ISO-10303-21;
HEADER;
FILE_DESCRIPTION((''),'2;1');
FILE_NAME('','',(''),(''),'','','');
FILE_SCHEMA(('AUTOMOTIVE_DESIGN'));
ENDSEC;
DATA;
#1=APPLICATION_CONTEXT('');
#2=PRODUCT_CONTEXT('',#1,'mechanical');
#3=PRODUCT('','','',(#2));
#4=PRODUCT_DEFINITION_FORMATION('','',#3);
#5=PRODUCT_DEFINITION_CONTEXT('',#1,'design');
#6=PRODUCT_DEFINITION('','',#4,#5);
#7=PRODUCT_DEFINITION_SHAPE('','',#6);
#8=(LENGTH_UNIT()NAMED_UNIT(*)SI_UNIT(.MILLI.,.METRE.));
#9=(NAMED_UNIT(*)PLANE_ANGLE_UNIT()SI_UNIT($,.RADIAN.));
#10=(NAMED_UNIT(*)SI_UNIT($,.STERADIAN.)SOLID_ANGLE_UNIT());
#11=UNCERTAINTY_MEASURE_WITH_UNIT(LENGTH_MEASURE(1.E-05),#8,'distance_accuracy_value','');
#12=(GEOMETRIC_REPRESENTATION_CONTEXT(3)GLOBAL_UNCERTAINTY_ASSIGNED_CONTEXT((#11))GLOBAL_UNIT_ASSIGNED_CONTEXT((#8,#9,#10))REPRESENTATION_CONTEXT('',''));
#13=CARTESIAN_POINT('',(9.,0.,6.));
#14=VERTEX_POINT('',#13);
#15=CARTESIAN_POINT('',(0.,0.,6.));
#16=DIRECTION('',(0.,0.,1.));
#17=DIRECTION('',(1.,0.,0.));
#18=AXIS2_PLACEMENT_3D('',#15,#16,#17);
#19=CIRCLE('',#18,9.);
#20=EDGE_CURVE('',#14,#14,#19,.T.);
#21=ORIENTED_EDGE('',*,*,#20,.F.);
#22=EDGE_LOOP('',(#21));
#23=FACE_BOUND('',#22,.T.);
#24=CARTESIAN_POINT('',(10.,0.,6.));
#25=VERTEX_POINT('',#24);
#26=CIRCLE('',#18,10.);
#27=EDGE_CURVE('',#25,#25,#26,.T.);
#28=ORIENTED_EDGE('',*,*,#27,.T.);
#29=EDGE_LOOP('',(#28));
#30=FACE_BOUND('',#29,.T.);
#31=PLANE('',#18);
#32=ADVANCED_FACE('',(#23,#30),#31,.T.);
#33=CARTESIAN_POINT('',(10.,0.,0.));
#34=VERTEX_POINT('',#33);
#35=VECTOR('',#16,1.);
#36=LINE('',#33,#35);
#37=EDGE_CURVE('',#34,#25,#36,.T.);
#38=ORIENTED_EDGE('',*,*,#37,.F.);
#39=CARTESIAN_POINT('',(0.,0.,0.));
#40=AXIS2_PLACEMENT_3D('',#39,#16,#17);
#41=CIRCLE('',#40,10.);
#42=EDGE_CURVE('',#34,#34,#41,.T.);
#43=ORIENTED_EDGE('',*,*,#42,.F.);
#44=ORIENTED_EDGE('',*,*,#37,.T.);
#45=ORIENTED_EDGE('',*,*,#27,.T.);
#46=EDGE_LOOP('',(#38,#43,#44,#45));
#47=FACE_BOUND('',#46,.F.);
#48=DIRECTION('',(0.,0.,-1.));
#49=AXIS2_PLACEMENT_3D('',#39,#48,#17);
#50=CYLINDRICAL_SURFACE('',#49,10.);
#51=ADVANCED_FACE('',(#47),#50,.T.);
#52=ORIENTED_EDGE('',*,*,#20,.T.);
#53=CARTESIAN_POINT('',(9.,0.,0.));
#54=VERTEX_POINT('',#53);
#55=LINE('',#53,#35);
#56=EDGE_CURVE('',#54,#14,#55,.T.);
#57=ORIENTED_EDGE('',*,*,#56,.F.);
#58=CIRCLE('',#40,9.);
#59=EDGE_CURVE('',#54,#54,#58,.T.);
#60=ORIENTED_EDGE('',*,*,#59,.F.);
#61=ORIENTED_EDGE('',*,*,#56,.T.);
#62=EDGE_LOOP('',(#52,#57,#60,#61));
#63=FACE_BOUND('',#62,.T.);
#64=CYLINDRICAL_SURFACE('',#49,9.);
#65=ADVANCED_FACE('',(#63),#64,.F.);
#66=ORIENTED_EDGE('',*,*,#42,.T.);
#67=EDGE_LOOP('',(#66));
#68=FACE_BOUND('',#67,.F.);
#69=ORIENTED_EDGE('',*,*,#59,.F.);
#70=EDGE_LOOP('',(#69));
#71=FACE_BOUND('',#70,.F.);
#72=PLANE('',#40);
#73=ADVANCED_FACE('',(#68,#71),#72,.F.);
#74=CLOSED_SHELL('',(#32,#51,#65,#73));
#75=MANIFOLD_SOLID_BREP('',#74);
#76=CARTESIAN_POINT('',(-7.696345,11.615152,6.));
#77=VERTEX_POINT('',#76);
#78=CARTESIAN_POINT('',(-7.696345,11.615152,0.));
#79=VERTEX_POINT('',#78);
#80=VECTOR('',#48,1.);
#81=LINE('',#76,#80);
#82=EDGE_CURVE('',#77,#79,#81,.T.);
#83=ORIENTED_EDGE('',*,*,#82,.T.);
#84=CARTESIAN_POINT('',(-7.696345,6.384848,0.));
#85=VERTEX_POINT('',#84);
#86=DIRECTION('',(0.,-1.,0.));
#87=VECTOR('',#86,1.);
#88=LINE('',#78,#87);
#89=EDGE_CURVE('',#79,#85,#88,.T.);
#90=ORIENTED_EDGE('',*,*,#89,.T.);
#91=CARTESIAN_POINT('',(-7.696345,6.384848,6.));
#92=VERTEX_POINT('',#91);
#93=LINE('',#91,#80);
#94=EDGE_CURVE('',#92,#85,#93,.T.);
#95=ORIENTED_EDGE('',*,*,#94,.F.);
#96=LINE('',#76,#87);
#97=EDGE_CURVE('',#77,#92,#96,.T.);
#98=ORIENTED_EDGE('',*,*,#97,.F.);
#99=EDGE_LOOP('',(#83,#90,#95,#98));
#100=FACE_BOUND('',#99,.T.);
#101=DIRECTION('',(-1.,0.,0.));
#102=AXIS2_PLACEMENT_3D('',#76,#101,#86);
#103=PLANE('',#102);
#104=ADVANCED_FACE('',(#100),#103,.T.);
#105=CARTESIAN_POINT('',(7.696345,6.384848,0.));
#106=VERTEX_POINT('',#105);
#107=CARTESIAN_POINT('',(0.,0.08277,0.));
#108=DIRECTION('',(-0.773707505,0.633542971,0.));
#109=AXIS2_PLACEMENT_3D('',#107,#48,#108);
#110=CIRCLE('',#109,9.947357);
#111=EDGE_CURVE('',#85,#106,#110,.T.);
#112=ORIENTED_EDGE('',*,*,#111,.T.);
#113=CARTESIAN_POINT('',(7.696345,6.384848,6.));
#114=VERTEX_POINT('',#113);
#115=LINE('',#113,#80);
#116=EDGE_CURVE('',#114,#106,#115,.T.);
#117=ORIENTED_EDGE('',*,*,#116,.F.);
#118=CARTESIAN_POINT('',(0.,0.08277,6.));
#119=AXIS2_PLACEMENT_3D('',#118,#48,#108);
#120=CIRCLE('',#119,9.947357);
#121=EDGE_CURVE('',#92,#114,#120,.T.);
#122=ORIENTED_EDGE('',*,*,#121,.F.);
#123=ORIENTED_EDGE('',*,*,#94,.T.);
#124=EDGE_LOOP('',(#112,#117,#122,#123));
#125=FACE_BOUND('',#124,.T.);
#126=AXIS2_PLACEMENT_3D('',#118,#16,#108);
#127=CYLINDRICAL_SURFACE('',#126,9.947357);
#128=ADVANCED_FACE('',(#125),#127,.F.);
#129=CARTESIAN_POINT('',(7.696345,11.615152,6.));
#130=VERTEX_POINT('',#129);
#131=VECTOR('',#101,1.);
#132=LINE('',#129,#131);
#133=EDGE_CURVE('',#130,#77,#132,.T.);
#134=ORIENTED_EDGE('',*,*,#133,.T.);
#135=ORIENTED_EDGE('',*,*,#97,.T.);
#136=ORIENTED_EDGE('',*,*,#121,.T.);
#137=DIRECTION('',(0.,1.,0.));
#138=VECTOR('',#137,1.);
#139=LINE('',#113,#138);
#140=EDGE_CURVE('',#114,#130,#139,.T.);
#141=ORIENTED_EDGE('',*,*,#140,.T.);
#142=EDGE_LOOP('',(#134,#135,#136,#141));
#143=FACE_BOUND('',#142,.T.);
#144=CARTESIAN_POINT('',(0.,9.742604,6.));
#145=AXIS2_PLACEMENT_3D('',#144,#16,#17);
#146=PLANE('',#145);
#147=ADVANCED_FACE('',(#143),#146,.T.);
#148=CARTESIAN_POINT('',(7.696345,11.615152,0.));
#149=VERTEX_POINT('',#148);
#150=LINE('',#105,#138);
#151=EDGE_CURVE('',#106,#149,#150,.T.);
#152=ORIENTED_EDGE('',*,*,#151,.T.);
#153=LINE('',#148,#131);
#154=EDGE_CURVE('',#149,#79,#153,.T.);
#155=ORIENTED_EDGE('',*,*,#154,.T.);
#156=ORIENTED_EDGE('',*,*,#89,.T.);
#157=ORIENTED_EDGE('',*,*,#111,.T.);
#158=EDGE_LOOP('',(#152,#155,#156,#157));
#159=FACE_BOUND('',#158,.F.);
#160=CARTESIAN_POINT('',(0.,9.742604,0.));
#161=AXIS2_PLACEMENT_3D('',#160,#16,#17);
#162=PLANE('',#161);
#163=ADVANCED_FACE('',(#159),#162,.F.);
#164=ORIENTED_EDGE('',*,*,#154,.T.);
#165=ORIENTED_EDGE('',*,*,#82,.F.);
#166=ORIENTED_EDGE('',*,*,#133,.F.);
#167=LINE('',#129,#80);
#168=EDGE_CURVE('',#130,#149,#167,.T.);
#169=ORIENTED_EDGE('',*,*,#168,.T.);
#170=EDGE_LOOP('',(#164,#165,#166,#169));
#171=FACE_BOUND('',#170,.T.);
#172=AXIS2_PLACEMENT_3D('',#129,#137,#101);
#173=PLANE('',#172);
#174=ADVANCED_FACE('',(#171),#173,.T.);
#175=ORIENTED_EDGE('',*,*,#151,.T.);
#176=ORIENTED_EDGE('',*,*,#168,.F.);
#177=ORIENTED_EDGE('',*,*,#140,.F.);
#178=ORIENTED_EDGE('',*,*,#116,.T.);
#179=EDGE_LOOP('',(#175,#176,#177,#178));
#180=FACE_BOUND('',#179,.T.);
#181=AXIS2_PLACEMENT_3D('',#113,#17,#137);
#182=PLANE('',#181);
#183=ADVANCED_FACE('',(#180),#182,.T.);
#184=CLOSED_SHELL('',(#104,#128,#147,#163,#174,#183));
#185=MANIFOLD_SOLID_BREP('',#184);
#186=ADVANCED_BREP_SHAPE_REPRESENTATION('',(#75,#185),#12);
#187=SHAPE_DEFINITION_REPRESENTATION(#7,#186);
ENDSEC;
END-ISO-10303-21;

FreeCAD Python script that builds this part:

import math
import FreeCAD as App
import Part
import Sketcher
from FreeCAD import Vector
Q = App.Units.Quantity

doc = App.newDocument("Part")
body = doc.addObject("PartDesign::Body", "Body")

sketch1 = body.newObject("Sketcher::SketchObject", "Sketch")
sketch1.AttachmentSupport = (doc.getObject("XY_Plane"), [""])
sketch1.MapMode = "FlatFace"
sketch1.addGeometry(Part.Circle(Vector(0, 0, 0), Vector(0, 0, 1), 10), False)
sketch1.addGeometry(Part.Circle(Vector(0, 0, 0), Vector(0, 0, 1), 9), False)
sketch1.addConstraint(Sketcher.Constraint("Coincident", 0, 3, -1, 1))
sketch1.addConstraint(Sketcher.Constraint("Coincident", 1, 3, -1, 1))
sketch1.addConstraint(Sketcher.Constraint("Diameter", 0, Q("20 mm")))
sketch1.addConstraint(Sketcher.Constraint("Diameter", 1, Q("18 mm")))
pad1 = body.newObject("PartDesign::Pad", "Pad")
pad1.Profile = sketch1
pad1.Length = 6
body2 = doc.addObject("PartDesign::Body", "Body001")

sketch2 = body2.newObject("Sketcher::SketchObject", "Sketch001")
sketch2.AttachmentSupport = (doc.getObject("XY_Plane001"), [""])
sketch2.MapMode = "FlatFace"
sketch2.AttachmentOffset = App.Placement(Vector(0, 0, 6), App.Rotation())
sketch2.addGeometry(Part.LineSegment(Vector(8, 6, 0), Vector(8, 12, 0)), False)
sketch2.addGeometry(Part.LineSegment(Vector(8, 12, 0), Vector(-8, 12, 0)), False)
sketch2.addGeometry(Part.LineSegment(Vector(-8, 12, 0), Vector(-8, 6, 0)), False)
sketch2.addGeometry(Part.ArcOfCircle(Part.Circle(Vector(0, 0, 0), Vector(0, 0, 1), 10), math.radians(39), math.radians(141)), False)
sketch2.addConstraint(Sketcher.Constraint("Coincident", 0, 2, 1, 1))
sketch2.addConstraint(Sketcher.Constraint("Coincident", 1, 2, 2, 1))
sketch2.addConstraint(Sketcher.Constraint("Coincident", 2, 2, 3, 2))
sketch2.addConstraint(Sketcher.Constraint("Coincident", 3, 1, 0, 1))
sketch2.addConstraint(Sketcher.Constraint("Vertical", 0))
sketch2.addConstraint(Sketcher.Constraint("Horizontal", 1))
sketch2.addConstraint(Sketcher.Constraint("Vertical", 2))
sketch2.addConstraint(Sketcher.Constraint("Symmetric", 2, 2, 3, 1, -2))
sketch2.addConstraint(Sketcher.Constraint("Radius", 3, Q("9.947357 mm")))
sketch2.addConstraint(Sketcher.Constraint("DistanceX", 1, 2, 1, 1, Q("15.39269 mm")))
sketch2.addConstraint(Sketcher.Constraint("DistanceY", 0, 1, 0, 2, Q("5.230304 mm")))
sketch2.addConstraint(Sketcher.Constraint("DistanceY", -1, 1, 3, 3, Q("0.08277 mm")))
pad2 = body2.newObject("PartDesign::Pad", "Pad001")
pad2.Profile = sketch2
pad2.Length = 6
pad2.Reversed = True

doc.recompute()
